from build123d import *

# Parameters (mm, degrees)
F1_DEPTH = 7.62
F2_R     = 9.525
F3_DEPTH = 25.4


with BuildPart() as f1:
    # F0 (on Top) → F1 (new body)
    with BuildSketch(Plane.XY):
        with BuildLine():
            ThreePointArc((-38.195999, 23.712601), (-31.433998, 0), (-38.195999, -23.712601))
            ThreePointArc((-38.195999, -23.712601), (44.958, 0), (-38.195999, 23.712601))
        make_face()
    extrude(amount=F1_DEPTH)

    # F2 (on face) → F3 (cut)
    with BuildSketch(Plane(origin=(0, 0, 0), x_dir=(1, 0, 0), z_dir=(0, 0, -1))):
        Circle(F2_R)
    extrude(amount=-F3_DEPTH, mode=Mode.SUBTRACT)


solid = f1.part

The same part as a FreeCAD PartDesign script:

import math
import FreeCAD as App
import Part
import Sketcher
from FreeCAD import Vector
Q = App.Units.Quantity

doc = App.newDocument("Part")
params = doc.addObject("Spreadsheet::Sheet", "Params")
for row, (alias, value) in enumerate([
    ("sketch1_radius", "1.7700001 in"),
    ("pad1_length", "0.3 in"),
    ("sketch2_diameter", "0.75 in"),
    ("pocket1_length", "1 in"),
], start=1):
    params.set(f"A{row}", alias)
    params.set(f"B{row}", "=" + value)
    params.setAlias(f"B{row}", alias)

body = doc.addObject("PartDesign::Body", "Body")

sketch1 = doc.addObject("Sketcher::SketchObject", "Sketch")
body.addObject(sketch1)
sketch1.AttachmentSupport = (doc.XY_Plane, [""])
sketch1.MapMode = "FlatFace"
sketch1.addGeometry(Part.ArcOfCircle(Part.Circle(Vector(-76, 0, 0), Vector(0, 0, 1), 45), math.radians(-32), math.radians(32)), False)
sketch1.addGeometry(Part.ArcOfCircle(Part.Circle(Vector(0, 0, 0), Vector(0, 0, 1), 45), math.radians(-148), math.radians(148)), False)
sketch1.addConstraint(Sketcher.Constraint("Coincident", 0, 1, 1, 1))
sketch1.addConstraint(Sketcher.Constraint("Coincident", 1, 2, 0, 2))
sketch1.addConstraint(Sketcher.Constraint("Coincident", 1, 3, -1, 1))
sketch1.addConstraint(Sketcher.Constraint("Equal", 0, 1))
sketch1.addConstraint(Sketcher.Constraint("PointOnObject", 0, 3, -1))
sketch1.addConstraint(Sketcher.Constraint("Radius", 0, Q("1.7700001 in")))
sketch1.addConstraint(Sketcher.Constraint("DistanceX", 0, 3, -1, 1, 76.392))
sketch1.setExpression("Constraints[5]", "Params.sketch1_radius")
pad1 = doc.addObject("PartDesign::Pad", "Pad")
body.addObject(pad1)
pad1.Profile = sketch1
pad1.setExpression("Length", "Params.pad1_length")

sketch2 = doc.addObject("Sketcher::SketchObject", "Sketch001")
body.addObject(sketch2)
sketch2.AttachmentSupport = (doc.XY_Plane, [""])
sketch2.MapMode = "FlatFace"
sketch2.addGeometry(Part.Circle(Vector(0, 0, 0), Vector(0, 0, 1), 10), False)
sketch2.addConstraint(Sketcher.Constraint("Coincident", 0, 3, -1, 1))
sketch2.addConstraint(Sketcher.Constraint("Diameter", 0, Q("0.75 in")))
sketch2.setExpression("Constraints[1]", "Params.sketch2_diameter")
pocket1 = doc.addObject("PartDesign::Pocket", "Pocket")
body.addObject(pocket1)
pocket1.Profile = sketch2
pocket1.setExpression("Length", "Params.pocket1_length")
pocket1.Reversed = True

doc.recompute()
